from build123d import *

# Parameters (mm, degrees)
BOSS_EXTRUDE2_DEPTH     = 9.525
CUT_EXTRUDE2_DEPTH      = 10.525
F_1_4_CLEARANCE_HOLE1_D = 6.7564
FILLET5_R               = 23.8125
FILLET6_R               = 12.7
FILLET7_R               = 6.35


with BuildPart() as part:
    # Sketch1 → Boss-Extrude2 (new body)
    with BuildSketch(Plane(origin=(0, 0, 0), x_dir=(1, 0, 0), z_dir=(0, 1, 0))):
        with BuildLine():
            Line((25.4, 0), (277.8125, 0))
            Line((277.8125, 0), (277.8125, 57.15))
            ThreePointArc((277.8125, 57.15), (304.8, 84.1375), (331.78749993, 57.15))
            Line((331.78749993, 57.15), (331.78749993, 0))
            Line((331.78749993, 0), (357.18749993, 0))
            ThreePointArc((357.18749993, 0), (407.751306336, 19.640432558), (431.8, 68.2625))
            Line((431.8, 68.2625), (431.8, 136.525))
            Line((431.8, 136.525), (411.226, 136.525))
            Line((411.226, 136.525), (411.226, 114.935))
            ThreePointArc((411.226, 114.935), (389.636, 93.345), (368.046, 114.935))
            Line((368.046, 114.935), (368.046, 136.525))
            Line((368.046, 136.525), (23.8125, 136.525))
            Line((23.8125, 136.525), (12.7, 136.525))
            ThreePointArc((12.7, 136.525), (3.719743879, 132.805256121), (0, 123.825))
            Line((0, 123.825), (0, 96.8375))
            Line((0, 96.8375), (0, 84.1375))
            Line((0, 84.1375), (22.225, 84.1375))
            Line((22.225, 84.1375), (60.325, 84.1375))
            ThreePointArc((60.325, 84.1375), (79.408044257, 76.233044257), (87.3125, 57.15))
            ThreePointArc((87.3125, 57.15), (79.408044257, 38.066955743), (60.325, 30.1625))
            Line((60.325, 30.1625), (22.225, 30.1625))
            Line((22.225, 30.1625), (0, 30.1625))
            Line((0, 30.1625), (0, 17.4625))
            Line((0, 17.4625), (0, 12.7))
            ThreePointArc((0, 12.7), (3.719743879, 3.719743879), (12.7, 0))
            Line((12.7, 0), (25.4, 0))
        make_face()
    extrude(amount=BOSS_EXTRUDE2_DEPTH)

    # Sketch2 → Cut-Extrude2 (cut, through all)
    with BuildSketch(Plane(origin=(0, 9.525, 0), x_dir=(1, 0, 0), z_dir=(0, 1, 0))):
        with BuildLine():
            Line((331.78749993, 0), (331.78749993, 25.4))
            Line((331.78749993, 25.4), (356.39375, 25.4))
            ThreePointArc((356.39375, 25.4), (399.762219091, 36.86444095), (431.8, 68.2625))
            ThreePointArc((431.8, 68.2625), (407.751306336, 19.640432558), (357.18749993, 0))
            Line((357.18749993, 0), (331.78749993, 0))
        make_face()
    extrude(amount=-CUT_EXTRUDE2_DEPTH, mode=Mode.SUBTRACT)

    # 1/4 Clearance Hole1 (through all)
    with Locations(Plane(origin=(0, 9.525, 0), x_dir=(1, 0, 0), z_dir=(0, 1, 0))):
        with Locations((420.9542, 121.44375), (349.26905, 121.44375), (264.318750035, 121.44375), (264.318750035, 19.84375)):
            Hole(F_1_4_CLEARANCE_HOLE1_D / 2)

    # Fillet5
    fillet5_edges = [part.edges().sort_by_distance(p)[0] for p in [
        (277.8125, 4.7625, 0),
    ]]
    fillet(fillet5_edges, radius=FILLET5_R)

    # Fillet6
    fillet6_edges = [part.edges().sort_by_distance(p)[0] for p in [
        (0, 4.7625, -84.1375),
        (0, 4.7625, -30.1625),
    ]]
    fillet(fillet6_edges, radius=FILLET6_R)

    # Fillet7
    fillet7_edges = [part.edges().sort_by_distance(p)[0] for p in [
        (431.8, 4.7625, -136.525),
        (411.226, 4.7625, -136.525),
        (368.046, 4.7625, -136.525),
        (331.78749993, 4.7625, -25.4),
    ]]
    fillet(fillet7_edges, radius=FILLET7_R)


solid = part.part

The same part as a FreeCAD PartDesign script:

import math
import FreeCAD as App
import Part
import Sketcher
Q = App.Units.Quantity


def edges_at(feature, points):
    """Names of the edges that pass closest to the given points."""
    edges = feature.Shape.Edges
    near = lambda p: min(range(len(edges)), key=lambda i: edges[i].distToShape(Part.Vertex(*p))[0])
    return sorted({f"Edge{near(p) + 1}" for p in points})

doc = App.newDocument("Part")
params = doc.addObject("Spreadsheet::Sheet", "Params")
for row, (alias, value) in enumerate([
    ("sketch1_radius", "0.5 in"),
    ("sketch1_width", "1 in"),
    ("sketch1_radius2", "0.85 in"),
    ("sketch1_radius3", "1.0625 in"),
    ("sketch1_width2", "0.81 in"),
    ("pad1_length", "0.375 in"),
    ("sketch2_width", "1 in"),
    ("sketch2_width2", "0.96875 in"),
    ("sketch3_diameter", "0.266 in"),
    ("hole_diameter", "0.266 in"),
    ("fillet_radius", "0.9375 in"),
    ("fillet2_radius", "0.5 in"),
    ("fillet3_radius", "0.25 in"),
], start=1):
    params.set(f"A{row}", alias)
    params.set(f"B{row}", "=" + value)
    params.setAlias(f"B{row}", alias)

body = doc.addObject("PartDesign::Body", "Body")

# Sketch on XZ plane
sketch1 = body.newObject("Sketcher::SketchObject", "Sketch")
sketch1.AttachmentSupport = (doc.getObject("XZ_Plane"), [""])
sketch1.MapMode = "FlatFace"
sketch1.addGeometry(Part.LineSegment(App.Vector(278, 0, 0), App.Vector(278, -57, 0)), False)
sketch1.addGeometry(Part.ArcOfCircle(Part.Circle(App.Vector(305, -57, 0), App.Vector(0, 0, 1), 27), math.radians(180), math.radians(360)), False)
sketch1.addGeometry(Part.LineSegment(App.Vector(332, -57, 0), App.Vector(332, 0, 0)), False)
sketch1.addGeometry(Part.LineSegment(App.Vector(332, 0, 0), App.Vector(357, 0, 0)), False)
sketch1.addGeometry(Part.ArcOfCircle(Part.Circle(App.Vector(357, -75, 0), App.Vector(0, 0, 1), 75), math.radians(5), math.radians(90)), False)
sketch1.addGeometry(Part.LineSegment(App.Vector(432, -68, 0), App.Vector(432, -137, 0)), False)
sketch1.addGeometry(Part.LineSegment(App.Vector(432, -137, 0), App.Vector(411, -137, 0)), False)
sketch1.addGeometry(Part.LineSegment(App.Vector(411, -137, 0), App.Vector(411, -115, 0)), False)
sketch1.addGeometry(Part.ArcOfCircle(Part.Circle(App.Vector(390, -115, 0), App.Vector(0, 0, 1), 22), math.radians(0), math.radians(180)), False)
sketch1.addGeometry(Part.LineSegment(App.Vector(368, -115, 0), App.Vector(368, -137, 0)), False)
sketch1.addGeometry(Part.LineSegment(App.Vector(368, -137, 0), App.Vector(13, -137, 0)), False)
sketch1.addGeometry(Part.ArcOfCircle(Part.Circle(App.Vector(13, -124, 0), App.Vector(0, 0, 1), 13), math.radians(180), math.radians(270)), False)
sketch1.addGeometry(Part.LineSegment(App.Vector(0, -124, 0), App.Vector(0, -84, 0)), False)
sketch1.addGeometry(Part.LineSegment(App.Vector(0, -84, 0), App.Vector(60, -84, 0)), False)
sketch1.addGeometry(Part.ArcOfCircle(Part.Circle(App.Vector(60, -57, 0), App.Vector(0, 0, 1), 27), math.radians(-90), math.radians(0)), False)
sketch1.addGeometry(Part.ArcOfCircle(Part.Circle(App.Vector(60, -57, 0), App.Vector(0, 0, 1), 27), math.radians(0), math.radians(90)), False)
sketch1.addGeometry(Part.LineSegment(App.Vector(60, -30, 0), App.Vector(0, -30, 0)), False)
sketch1.addGeometry(Part.LineSegment(App.Vector(0, -30, 0), App.Vector(0, -13, 0)), False)
sketch1.addGeometry(Part.ArcOfCircle(Part.Circle(App.Vector(13, -13, 0), App.Vector(0, 0, 1), 13), math.radians(90), math.radians(180)), False)
sketch1.addGeometry(Part.LineSegment(App.Vector(13, 0, 0), App.Vector(278, 0, 0)), False)
sketch1.addConstraint(Sketcher.Constraint("Tangent", 0, 2, 1, 1))
sketch1.addConstraint(Sketcher.Constraint("Tangent", 1, 2, 2, 1))
sketch1.addConstraint(Sketcher.Constraint("Coincident", 2, 2, 3, 1))
sketch1.addConstraint(Sketcher.Constraint("Tangent", 3, 2, 4, 2))
sketch1.addConstraint(Sketcher.Constraint("Coincident", 4, 1, 5, 1))
sketch1.addConstraint(Sketcher.Constraint("Coincident", 5, 2, 6, 1))
sketch1.addConstraint(Sketcher.Constraint("Coincident", 6, 2, 7, 1))
sketch1.addConstraint(Sketcher.Constraint("Tangent", 7, 2, 8, 1))
sketch1.addConstraint(Sketcher.Constraint("Tangent", 8, 2, 9, 1))
sketch1.addConstraint(Sketcher.Constraint("Coincident", 9, 2, 10, 1))
sketch1.addConstraint(Sketcher.Constraint("Tangent", 10, 2, 11, 2))
sketch1.addConstraint(Sketcher.Constraint("Tangent", 11, 1, 12, 1))
sketch1.addConstraint(Sketcher.Constraint("Coincident", 12, 2, 13, 1))
sketch1.addConstraint(Sketcher.Constraint("Tangent", 13, 2, 14, 1))
sketch1.addConstraint(Sketcher.Constraint("Tangent", 14, 2, 15, 1))
sketch1.addConstraint(Sketcher.Constraint("Tangent", 15, 2, 16, 1))
sketch1.addConstraint(Sketcher.Constraint("Coincident", 16, 2, 17, 1))
sketch1.addConstraint(Sketcher.Constraint("Tangent", 17, 2, 18, 2))
sketch1.addConstraint(Sketcher.Constraint("Tangent", 18, 1, 19, 1))
sketch1.addConstraint(Sketcher.Constraint("Coincident", 19, 2, 0, 1))
sketch1.addConstraint(Sketcher.Constraint("Vertical", 0))
sketch1.addConstraint(Sketcher.Constraint("Vertical", 2))
sketch1.addConstraint(Sketcher.Constraint("Horizontal", 3))
sketch1.addConstraint(Sketcher.Constraint("Vertical", 5))
sketch1.addConstraint(Sketcher.Constraint("Horizontal", 6))
sketch1.addConstraint(Sketcher.Constraint("Vertical", 7))
sketch1.addConstraint(Sketcher.Constraint("Vertical", 9))
sketch1.addConstraint(Sketcher.Constraint("Horizontal", 10))
sketch1.addConstraint(Sketcher.Constraint("Vertical", 12))
sketch1.addConstraint(Sketcher.Constraint("Horizontal", 13))
sketch1.addConstraint(Sketcher.Constraint("Horizontal", 16))
sketch1.addConstraint(Sketcher.Constraint("Vertical", 17))
sketch1.addConstraint(Sketcher.Constraint("Horizontal", 19))
sketch1.addConstraint(Sketcher.Constraint("Equal", 1, 14))
sketch1.addConstraint(Sketcher.Constraint("Equal", 14, 15))
sketch1.addConstraint(Sketcher.Constraint("Equal", 11, 18))
sketch1.addConstraint(Sketcher.Constraint("PointOnObject", 2, 2, -1))
sketch1.addConstraint(Sketcher.Constraint("PointOnObject", 11, 1, -2))
sketch1.addConstraint(Sketcher.Constraint("PointOnObject", 16, 2, -2))
sketch1.addConstraint(Sketcher.Constraint("PointOnObject", 18, 1, -1))
sketch1.addConstraint(Sketcher.Constraint("Horizontal", 1, 3, 14, 3))
sketch1.addConstraint(Sketcher.Constraint("Horizontal", 6, 2, 9, 2))
sketch1.addConstraint(Sketcher.Constraint("Horizontal", 1, 2, 14, 2))
sketch1.addConstraint(Sketcher.Constraint("Radius", 11, Q("0.5 in")))
sketch1.addConstraint(Sketcher.Constraint("DistanceX", 3, 1, 3, 2, Q("1 in")))
sketch1.addConstraint(Sketcher.Constraint("Radius", 8, Q("0.85 in")))
sketch1.addConstraint(Sketcher.Constraint("DistanceX", -1, 1, 1, 3, Q("12 in")))
sketch1.addConstraint(Sketcher.Constraint("DistanceX", -1, 1, 4, 1, Q("17 in")))
sketch1.addConstraint(Sketcher.Constraint("Radius", 1, Q("1.0625 in")))
sketch1.addConstraint(Sketcher.Constraint("DistanceX", 6, 2, 6, 1, Q("0.81 in")))
sketch1.addConstraint(Sketcher.Constraint("DistanceY", 0, 2, 0, 1, Q("2.25 in")))
sketch1.addConstraint(Sketcher.Constraint("DistanceY", 7, 1, 7, 2, Q("0.85 in")))
sketch1.addConstraint(Sketcher.Constraint("DistanceX", 13, 1, 13, 2, Q("2.375 in")))
sketch1.addConstraint(Sketcher.Constraint("DistanceY", 5, 2, 5, 1, Q("2.6875 in")))
sketch1.addConstraint(Sketcher.Constraint("DistanceY", 12, 1, 12, 2, Q("1.5625 in")))
sketch1.setExpression("Constraints[43]", "Params.sketch1_radius")
sketch1.setExpression("Constraints[44]", "Params.sketch1_width")
sketch1.setExpression("Constraints[45]", "Params.sketch1_radius2")
sketch1.setExpression("Constraints[48]", "Params.sketch1_radius3")
sketch1.setExpression("Constraints[49]", "Params.sketch1_width2")
pad1 = body.newObject("PartDesign::Pad", "Pad")
pad1.Profile = sketch1
pad1.setExpression("Length", "Params.pad1_length")
pad1.Reversed = True

# Sketch on XZ plane
sketch2 = body.newObject("Sketcher::SketchObject", "Sketch001")
sketch2.AttachmentSupport = (doc.getObject("XZ_Plane"), [""])
sketch2.MapMode = "FlatFace"
sketch2.AttachmentOffset = App.Placement(App.Vector(0, 0, -0.375 * 25.4), App.Rotation())
sketch2.addGeometry(Part.LineSegment(App.Vector(332, -25, 0), App.Vector(332, 0, 0)), False)
sketch2.addGeometry(Part.LineSegment(App.Vector(332, 0, 0), App.Vector(357, 0, 0)), False)
sketch2.addGeometry(Part.ArcOfCircle(Part.Circle(App.Vector(357, -75, 0), App.Vector(0, 0, 1), 75), math.radians(5), math.radians(90)), False)
sketch2.addGeometry(Part.ArcOfCircle(Part.Circle(App.Vector(356, -113, 0), App.Vector(0, 0, 1), 88), math.radians(31), math.radians(90)), False)
sketch2.addGeometry(Part.LineSegment(App.Vector(356, -25, 0), App.Vector(332, -25, 0)), False)
sketch2.addConstraint(Sketcher.Constraint("Coincident", 0, 2, 1, 1))
sketch2.addConstraint(Sketcher.Constraint("Tangent", 1, 2, 2, 2))
sketch2.addConstraint(Sketcher.Constraint("Coincident", 2, 1, 3, 1))
sketch2.addConstraint(Sketcher.Constraint("Tangent", 3, 2, 4, 1))
sketch2.addConstraint(Sketcher.Constraint("Coincident", 4, 2, 0, 1))
sketch2.addConstraint(Sketcher.Constraint("Vertical", 0))
sketch2.addConstraint(Sketcher.Constraint("Horizontal", 1))
sketch2.addConstraint(Sketcher.Constraint("Horizontal", 4))
sketch2.addConstraint(Sketcher.Constraint("PointOnObject", 0, 2, -1))
sketch2.addConstraint(Sketcher.Constraint("Equal", 1, 0))
sketch2.addConstraint(Sketcher.Constraint("DistanceX", 1, 1, 1, 2, Q("1 in")))
sketch2.addConstraint(Sketcher.Constraint("DistanceX", -1, 1, 2, 1, Q("17 in")))
sketch2.addConstraint(Sketcher.Constraint("DistanceX", 4, 2, 4, 1, Q("0.96875 in")))
sketch2.addConstraint(Sketcher.Constraint("DistanceX", -1, 1, 2, 3, Q("14.0625 in")))
sketch2.addConstraint(Sketcher.Constraint("DistanceY", 2, 1, -1, 1, Q("2.6875 in")))
sketch2.setExpression("Constraints[10]", "Params.sketch2_width")
sketch2.setExpression("Constraints[12]", "Params.sketch2_width2")
pocket1 = body.newObject("PartDesign::Pocket", "Pocket")
pocket1.Profile = sketch2
pocket1.Type = "ThroughAll"
pocket1.Reversed = True

# Sketch on XZ plane
sketch3 = body.newObject("Sketcher::SketchObject", "Sketch002")
sketch3.AttachmentSupport = (doc.getObject("XZ_Plane"), [""])
sketch3.MapMode = "FlatFace"
sketch3.AttachmentOffset = App.Placement(App.Vector(0, 0, -0.375 * 25.4), App.Rotation())
sketch3.addGeometry(Part.Circle(App.Vector(421, -121.4, 0), App.Vector(0, 0, 1), 3.4), False)
sketch3.addGeometry(Part.Circle(App.Vector(349.3, -121.4, 0), App.Vector(0, 0, 1), 3.4), False)
sketch3.addGeometry(Part.Circle(App.Vector(264.3, -121.4, 0), App.Vector(0, 0, 1), 3.4), False)
sketch3.addGeometry(Part.Circle(App.Vector(264.3, -19.8, 0), App.Vector(0, 0, 1), 3.4), False)
sketch3.addConstraint(Sketcher.Constraint("Equal", 0, 1))
sketch3.addConstraint(Sketcher.Constraint("Equal", 1, 2))
sketch3.addConstraint(Sketcher.Constraint("Equal", 2, 3))
sketch3.addConstraint(Sketcher.Constraint("Horizontal", 0, 3, 1, 3))
sketch3.addConstraint(Sketcher.Constraint("Horizontal", 1, 3, 2, 3))
sketch3.addConstraint(Sketcher.Constraint("Vertical", 2, 3, 3, 3))
sketch3.addConstraint(Sketcher.Constraint("Diameter", 0, Q("0.266 in")))
sketch3.addConstraint(Sketcher.Constraint("DistanceY", 2, 3, 3, 3, Q("4 in")))
sketch3.addConstraint(Sketcher.Constraint("DistanceX", -1, 1, 0, 3, Q("16.573 in")))
sketch3.addConstraint(Sketcher.Constraint("DistanceY", 0, 3, -1, 1, Q("4.78125 in")))
sketch3.addConstraint(Sketcher.Constraint("DistanceX", -1, 1, 2, 3, Q("10.40625 in")))
sketch3.addConstraint(Sketcher.Constraint("DistanceX", 2, 3, 1, 3, Q("3.3445 in")))
sketch3.setExpression("Constraints[6]", "Params.sketch3_diameter")
doc.recompute()
hole = body.newObject("PartDesign::Hole", "Hole")
hole.Profile = sketch3
hole.ThreadType = "None"
hole.setExpression("Diameter", "Params.hole_diameter")
hole.DepthType = "ThroughAll"
hole.Reversed = True
doc.recompute()

fillet = body.newObject("PartDesign::Fillet", "Fillet")
fillet.Base = (hole, edges_at(hole, [(277.812, 4.763, 0)]))
fillet.setExpression("Radius", "Params.fillet_radius")
doc.recompute()

fillet2 = body.newObject("PartDesign::Fillet", "Fillet001")
fillet2.Base = (fillet, edges_at(fillet, [(0, 4.763, -84.138), (0, 4.763, -30.163)]))
fillet2.setExpression("Radius", "Params.fillet2_radius")
doc.recompute()

fillet3 = body.newObject("PartDesign::Fillet", "Fillet002")
fillet3.Base = (fillet2, edges_at(fillet2, [
    (431.8, 4.763, -136.525),
    (411.226, 4.763, -136.525),
    (368.046, 4.763, -136.525),
    (331.787, 4.763, -25.4),
]))
fillet3.setExpression("Radius", "Params.fillet3_radius")

doc.recompute()
